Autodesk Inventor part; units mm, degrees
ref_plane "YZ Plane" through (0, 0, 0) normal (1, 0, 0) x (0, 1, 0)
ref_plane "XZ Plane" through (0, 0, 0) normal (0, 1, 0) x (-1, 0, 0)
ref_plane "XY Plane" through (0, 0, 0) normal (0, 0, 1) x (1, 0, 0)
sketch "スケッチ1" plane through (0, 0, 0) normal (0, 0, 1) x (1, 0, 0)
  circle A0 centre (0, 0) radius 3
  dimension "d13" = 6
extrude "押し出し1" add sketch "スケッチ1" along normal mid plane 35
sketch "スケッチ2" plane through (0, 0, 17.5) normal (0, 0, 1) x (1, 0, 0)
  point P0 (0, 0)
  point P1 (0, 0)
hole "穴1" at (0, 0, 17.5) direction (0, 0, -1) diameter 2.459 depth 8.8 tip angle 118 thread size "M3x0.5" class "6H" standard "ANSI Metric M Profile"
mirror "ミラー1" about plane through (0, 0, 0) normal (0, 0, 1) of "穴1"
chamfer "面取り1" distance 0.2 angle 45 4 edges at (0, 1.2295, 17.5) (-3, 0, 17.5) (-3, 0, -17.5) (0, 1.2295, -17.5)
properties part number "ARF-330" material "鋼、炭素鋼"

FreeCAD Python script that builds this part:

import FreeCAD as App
import Part
import Sketcher
Q = App.Units.Quantity


def edges_at(feature, points):
    """Names of the edges that pass closest to the given points."""
    edges = feature.Shape.Edges
    near = lambda p: min(range(len(edges)), key=lambda i: edges[i].distToShape(Part.Vertex(*p))[0])
    return sorted({f"Edge{near(p) + 1}" for p in points})

doc = App.newDocument("Part")
body = doc.addObject("PartDesign::Body", "Body")

sketch1 = body.newObject("Sketcher::SketchObject", "Sketch")
sketch1.AttachmentSupport = (doc.getObject("XY_Plane"), [""])
sketch1.MapMode = "FlatFace"
sketch1.addGeometry(Part.Circle(App.Vector(0, 0, 0), App.Vector(0, 0, 1), 3), False)
sketch1.addConstraint([
    Sketcher.Constraint("Coincident", 0, 3, -1, 1),
    Sketcher.Constraint("Diameter", 0, Q("6 mm")),
])
pad1 = body.newObject("PartDesign::Pad", "Pad")
pad1.Profile = sketch1
pad1.Length = 35
pad1.Midplane = True

sketch2 = body.newObject("Sketcher::SketchObject", "Sketch001")
sketch2.AttachmentSupport = (doc.getObject("XY_Plane"), [""])
sketch2.MapMode = "FlatFace"
sketch2.AttachmentOffset = App.Placement(App.Vector(0, 0, 17.5), App.Rotation())
sketch2.addGeometry(Part.Circle(App.Vector(0, 0, 0), App.Vector(0, 0, 1), 1.2295), False)
sketch2.addConstraint([
    Sketcher.Constraint("Coincident", 0, 3, -1, 1),
    Sketcher.Constraint("Diameter", 0, Q("2.459 mm")),
])
doc.recompute()
hole = body.newObject("PartDesign::Hole", "Hole")
hole.Profile = sketch2
hole.ThreadType = "None"
hole.Diameter = 2.459
hole.DepthType = "Dimension"
hole.Depth = 8.8
hole.DrillPoint = "Angled"
hole.DrillPointAngle = 118
doc.recompute()

mirrored = body.newObject("PartDesign::Mirrored", "Mirrored")
mirrored.Originals = [hole]
mirrored.MirrorPlane = (doc.getObject("XY_Plane"), [""])
body.Tip = mirrored
doc.recompute()

chamfer = body.newObject("PartDesign::Chamfer", "Chamfer")
chamfer.Base = (mirrored, edges_at(mirrored, [
    (0, 1.23, 17.5),
    (-3, 0, 17.5),
    (-3, 0, -17.5),
    (0, 1.23, -17.5),
]))
chamfer.Size = 0.2

doc.recompute()
